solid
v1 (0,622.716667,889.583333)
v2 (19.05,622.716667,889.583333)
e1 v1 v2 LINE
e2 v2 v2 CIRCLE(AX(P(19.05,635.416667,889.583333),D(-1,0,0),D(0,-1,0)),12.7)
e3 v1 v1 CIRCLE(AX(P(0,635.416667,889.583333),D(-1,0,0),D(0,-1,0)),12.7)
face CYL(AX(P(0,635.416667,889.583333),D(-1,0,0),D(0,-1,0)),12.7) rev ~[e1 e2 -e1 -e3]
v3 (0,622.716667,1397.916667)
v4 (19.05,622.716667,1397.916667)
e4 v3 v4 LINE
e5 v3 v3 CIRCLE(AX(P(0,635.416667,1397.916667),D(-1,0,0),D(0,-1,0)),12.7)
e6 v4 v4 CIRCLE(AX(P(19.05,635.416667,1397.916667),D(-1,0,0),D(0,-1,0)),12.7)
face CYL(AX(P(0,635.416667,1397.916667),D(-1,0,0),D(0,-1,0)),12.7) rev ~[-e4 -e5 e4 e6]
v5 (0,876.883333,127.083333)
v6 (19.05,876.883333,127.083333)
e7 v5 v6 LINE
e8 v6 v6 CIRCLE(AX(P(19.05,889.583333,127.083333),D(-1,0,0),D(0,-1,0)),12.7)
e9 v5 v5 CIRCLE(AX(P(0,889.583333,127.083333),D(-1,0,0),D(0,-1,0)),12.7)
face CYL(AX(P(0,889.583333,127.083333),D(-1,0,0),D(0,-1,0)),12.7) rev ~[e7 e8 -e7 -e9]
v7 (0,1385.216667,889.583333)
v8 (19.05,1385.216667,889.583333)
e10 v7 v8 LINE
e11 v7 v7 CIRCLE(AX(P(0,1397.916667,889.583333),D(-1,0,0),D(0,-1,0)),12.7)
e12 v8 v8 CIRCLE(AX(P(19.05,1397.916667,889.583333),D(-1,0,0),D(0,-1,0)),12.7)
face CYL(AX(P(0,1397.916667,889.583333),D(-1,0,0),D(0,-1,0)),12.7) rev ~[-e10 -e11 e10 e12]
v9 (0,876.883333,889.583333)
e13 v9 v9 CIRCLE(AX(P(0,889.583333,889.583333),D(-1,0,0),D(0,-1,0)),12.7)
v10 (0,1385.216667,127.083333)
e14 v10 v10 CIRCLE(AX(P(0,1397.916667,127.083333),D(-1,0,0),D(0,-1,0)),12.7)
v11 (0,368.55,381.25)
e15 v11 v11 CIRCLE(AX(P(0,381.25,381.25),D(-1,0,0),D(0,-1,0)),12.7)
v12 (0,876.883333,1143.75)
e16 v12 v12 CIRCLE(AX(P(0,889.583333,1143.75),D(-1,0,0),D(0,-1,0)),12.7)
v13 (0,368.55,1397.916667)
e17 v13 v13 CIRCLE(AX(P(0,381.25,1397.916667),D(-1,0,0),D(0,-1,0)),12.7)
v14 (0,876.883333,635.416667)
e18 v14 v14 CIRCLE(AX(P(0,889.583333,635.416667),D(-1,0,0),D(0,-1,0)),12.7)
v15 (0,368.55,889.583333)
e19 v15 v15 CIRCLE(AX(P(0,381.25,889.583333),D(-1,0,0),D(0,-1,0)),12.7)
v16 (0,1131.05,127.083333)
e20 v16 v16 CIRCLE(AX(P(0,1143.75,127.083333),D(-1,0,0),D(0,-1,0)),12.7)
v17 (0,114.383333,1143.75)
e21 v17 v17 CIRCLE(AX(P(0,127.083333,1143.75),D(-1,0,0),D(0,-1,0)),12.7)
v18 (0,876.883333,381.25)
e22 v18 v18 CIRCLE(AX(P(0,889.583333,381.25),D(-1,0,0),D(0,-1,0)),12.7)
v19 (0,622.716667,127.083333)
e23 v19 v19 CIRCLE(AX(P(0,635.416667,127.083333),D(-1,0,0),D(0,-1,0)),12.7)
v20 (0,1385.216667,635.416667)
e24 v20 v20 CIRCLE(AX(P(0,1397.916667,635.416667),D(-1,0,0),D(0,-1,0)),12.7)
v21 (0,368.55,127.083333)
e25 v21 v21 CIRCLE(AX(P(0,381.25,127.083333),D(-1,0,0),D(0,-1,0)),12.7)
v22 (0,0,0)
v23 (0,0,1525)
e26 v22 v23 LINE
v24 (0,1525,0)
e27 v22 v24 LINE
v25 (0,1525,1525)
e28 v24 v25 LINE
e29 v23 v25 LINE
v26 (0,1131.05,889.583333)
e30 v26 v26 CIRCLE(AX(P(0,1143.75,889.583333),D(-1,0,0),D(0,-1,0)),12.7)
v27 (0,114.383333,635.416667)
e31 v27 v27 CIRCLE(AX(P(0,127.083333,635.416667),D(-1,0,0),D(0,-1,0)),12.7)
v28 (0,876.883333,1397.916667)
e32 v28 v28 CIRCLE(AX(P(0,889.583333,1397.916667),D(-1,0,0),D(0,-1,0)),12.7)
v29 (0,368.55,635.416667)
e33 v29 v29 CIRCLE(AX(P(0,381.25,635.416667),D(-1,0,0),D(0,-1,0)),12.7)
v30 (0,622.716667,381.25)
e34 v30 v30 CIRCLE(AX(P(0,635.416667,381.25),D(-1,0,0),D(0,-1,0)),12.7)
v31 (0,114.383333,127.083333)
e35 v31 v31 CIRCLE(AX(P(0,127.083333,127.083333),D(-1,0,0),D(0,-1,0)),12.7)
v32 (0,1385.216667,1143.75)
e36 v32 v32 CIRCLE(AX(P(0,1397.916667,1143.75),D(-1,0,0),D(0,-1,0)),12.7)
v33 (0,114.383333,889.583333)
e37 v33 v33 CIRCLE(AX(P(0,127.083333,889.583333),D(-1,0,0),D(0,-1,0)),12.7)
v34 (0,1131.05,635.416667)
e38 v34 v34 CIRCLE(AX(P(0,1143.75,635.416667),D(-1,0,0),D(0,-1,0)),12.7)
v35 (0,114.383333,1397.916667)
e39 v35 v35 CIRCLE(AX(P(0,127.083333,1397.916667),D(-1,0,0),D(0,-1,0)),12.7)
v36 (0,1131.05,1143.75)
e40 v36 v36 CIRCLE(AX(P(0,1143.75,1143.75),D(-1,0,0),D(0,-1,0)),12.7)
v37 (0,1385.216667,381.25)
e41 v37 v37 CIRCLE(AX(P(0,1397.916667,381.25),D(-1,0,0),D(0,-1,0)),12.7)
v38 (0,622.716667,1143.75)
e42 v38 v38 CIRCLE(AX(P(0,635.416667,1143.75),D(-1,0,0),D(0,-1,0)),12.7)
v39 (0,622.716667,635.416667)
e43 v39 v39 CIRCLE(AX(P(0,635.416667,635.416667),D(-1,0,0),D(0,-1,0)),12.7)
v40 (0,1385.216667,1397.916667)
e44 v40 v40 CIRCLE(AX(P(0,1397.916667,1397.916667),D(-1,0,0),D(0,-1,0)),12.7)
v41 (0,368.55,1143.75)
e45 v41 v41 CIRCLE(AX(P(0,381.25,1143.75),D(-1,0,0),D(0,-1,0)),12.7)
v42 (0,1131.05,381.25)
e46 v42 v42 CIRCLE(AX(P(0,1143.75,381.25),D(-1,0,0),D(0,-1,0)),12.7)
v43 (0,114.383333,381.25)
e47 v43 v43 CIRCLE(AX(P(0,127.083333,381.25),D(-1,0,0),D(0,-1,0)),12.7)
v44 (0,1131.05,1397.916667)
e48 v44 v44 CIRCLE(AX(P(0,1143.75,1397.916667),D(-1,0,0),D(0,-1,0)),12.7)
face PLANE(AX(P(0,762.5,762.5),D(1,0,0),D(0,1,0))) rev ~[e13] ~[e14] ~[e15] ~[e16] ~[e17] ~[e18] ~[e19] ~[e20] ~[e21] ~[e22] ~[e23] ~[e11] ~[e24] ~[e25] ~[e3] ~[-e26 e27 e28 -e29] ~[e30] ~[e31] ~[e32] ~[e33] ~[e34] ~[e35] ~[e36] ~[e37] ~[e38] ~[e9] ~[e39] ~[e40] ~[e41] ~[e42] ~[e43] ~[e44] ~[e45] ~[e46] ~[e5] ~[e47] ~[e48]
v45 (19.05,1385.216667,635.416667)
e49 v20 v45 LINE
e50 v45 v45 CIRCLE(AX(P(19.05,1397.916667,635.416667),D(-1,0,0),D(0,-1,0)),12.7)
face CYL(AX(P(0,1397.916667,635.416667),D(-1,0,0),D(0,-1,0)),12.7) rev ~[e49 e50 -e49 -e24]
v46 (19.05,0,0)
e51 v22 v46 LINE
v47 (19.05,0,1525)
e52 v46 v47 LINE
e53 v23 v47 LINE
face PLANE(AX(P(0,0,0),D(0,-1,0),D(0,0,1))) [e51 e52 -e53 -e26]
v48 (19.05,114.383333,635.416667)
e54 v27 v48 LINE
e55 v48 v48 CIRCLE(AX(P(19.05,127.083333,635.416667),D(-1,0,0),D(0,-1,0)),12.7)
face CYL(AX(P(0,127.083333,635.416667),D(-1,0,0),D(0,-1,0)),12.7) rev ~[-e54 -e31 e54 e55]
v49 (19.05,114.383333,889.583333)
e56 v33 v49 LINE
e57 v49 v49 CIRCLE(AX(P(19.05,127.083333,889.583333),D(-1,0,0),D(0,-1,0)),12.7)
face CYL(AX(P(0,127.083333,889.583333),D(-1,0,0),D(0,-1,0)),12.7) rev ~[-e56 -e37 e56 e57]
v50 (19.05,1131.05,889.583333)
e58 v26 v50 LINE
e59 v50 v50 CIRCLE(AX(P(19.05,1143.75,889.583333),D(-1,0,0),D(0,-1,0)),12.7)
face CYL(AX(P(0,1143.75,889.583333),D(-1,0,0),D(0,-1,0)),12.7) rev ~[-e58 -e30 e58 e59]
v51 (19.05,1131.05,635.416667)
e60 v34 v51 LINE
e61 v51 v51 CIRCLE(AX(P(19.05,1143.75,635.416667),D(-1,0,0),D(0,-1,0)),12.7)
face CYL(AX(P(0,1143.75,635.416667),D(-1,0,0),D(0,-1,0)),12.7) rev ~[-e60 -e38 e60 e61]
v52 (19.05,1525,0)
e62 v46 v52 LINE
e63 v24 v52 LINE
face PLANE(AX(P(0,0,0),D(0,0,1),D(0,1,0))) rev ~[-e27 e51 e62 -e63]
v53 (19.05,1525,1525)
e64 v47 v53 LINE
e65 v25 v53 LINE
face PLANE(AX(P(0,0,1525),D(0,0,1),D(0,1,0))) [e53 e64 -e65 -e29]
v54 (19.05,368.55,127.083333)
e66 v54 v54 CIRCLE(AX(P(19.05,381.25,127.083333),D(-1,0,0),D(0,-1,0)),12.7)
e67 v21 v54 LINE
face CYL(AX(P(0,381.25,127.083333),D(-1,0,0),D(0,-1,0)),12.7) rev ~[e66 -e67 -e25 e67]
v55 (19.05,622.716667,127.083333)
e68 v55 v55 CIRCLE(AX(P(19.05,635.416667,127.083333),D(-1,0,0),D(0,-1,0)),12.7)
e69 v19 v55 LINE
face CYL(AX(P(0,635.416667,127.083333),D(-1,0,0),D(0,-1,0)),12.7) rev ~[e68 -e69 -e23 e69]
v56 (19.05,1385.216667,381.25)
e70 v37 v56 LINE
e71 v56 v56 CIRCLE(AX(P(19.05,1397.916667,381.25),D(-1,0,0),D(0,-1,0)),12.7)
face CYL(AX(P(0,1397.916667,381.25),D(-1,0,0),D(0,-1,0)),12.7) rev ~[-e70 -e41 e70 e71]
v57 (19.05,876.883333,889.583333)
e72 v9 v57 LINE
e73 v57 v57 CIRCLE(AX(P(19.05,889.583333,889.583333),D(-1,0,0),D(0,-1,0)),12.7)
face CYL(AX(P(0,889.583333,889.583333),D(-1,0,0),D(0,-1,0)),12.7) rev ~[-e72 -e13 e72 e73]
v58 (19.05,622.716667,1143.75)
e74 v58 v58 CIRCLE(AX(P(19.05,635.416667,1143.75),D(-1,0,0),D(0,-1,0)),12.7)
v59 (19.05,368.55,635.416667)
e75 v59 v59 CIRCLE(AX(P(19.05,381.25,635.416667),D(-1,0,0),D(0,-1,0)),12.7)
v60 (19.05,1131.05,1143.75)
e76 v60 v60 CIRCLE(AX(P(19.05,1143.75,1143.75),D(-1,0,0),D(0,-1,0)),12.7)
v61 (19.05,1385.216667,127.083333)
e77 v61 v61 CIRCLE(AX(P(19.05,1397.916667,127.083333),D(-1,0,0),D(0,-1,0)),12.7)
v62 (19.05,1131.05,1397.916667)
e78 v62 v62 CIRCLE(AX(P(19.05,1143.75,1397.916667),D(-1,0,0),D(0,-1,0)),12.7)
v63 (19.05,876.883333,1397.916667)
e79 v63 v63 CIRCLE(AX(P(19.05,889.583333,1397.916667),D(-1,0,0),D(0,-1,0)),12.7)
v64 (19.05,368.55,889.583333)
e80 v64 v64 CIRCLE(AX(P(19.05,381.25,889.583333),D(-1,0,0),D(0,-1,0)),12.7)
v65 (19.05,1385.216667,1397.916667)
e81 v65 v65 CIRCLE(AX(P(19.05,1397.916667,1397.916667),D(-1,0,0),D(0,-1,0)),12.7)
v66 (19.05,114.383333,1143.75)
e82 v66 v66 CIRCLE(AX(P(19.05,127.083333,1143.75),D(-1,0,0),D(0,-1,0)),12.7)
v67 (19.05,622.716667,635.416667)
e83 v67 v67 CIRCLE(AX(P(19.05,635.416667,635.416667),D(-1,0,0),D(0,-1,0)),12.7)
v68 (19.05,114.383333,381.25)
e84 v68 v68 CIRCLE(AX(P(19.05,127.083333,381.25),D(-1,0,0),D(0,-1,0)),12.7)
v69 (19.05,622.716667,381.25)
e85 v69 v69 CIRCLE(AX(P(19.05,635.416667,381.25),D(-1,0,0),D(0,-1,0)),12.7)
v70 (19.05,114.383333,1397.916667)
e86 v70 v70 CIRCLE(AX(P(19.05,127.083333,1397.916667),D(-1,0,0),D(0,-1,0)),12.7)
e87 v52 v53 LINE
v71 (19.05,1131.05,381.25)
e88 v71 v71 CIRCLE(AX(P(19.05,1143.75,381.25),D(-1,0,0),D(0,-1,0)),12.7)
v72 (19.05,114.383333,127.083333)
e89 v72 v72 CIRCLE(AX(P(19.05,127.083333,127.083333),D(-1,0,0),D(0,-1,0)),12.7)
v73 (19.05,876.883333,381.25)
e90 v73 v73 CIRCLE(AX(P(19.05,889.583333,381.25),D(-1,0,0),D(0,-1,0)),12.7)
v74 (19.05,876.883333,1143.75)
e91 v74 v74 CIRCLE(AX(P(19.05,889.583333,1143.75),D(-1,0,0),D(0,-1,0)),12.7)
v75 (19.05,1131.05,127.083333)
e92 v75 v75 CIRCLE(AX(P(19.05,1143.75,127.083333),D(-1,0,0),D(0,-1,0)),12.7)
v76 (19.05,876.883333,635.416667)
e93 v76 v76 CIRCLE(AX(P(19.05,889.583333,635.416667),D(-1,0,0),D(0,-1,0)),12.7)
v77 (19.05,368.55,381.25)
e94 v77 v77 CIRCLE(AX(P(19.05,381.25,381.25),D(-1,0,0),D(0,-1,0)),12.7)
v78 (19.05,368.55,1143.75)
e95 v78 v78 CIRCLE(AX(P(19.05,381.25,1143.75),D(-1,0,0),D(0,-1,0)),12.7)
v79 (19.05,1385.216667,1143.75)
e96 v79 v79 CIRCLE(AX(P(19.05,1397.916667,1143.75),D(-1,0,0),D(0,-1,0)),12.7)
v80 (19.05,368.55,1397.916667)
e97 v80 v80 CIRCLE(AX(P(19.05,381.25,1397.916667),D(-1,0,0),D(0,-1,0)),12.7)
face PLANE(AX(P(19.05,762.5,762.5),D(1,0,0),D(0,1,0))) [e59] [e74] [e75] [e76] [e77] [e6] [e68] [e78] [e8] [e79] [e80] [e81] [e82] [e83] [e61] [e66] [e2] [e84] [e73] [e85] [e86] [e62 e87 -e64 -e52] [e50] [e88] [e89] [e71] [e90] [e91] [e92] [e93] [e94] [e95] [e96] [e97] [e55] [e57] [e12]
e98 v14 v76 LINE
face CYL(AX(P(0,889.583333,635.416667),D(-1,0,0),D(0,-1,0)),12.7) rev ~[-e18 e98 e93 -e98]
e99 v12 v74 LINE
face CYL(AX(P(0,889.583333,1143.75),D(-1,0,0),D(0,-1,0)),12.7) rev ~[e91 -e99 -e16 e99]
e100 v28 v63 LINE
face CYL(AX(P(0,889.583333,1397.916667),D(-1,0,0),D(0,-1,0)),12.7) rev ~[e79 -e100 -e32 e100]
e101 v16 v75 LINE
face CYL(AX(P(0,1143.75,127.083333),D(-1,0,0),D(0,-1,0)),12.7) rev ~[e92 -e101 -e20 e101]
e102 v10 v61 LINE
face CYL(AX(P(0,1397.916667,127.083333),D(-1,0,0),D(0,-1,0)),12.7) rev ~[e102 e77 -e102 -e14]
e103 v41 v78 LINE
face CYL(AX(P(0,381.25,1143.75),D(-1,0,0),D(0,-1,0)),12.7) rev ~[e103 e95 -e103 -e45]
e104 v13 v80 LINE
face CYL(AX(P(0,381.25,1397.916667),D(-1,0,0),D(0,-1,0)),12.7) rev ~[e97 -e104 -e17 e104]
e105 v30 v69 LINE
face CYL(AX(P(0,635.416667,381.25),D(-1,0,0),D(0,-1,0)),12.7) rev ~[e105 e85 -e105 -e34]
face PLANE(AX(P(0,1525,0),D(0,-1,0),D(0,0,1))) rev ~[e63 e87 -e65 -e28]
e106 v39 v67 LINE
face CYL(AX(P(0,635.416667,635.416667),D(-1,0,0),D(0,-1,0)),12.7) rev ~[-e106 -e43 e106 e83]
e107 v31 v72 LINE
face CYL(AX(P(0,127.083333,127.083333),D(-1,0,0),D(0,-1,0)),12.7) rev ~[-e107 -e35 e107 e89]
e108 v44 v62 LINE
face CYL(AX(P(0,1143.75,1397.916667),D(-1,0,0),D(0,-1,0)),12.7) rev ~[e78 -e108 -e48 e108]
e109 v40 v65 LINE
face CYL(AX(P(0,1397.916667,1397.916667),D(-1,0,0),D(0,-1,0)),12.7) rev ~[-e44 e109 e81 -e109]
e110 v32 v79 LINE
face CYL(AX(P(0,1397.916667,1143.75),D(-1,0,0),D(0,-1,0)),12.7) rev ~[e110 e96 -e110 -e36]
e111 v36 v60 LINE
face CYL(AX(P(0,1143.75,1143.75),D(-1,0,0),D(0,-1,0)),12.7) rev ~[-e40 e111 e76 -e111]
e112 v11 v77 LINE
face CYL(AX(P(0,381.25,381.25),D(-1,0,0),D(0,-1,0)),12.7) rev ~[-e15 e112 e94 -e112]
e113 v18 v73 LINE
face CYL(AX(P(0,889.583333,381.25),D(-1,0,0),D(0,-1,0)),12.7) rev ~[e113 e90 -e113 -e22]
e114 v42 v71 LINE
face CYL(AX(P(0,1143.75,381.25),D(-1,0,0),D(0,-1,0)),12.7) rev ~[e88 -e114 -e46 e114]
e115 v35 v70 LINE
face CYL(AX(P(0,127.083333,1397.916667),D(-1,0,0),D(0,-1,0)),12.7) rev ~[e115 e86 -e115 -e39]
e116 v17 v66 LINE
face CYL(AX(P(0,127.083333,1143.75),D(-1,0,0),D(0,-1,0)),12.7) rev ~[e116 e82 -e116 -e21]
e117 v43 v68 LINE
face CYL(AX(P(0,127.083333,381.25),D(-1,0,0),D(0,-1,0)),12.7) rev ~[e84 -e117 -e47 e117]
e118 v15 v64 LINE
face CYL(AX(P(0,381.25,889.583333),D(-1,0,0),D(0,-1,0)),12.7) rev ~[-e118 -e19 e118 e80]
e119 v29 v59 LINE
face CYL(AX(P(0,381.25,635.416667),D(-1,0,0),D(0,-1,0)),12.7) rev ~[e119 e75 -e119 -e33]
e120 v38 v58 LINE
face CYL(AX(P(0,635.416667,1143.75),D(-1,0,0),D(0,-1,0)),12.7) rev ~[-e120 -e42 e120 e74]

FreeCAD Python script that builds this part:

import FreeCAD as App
import Part
import Sketcher
Q = App.Units.Quantity


def add_polygon(sketch, points):
    """Adds a closed chain of lines whose ends are joined by coincident constraints."""
    first, n = sketch.GeometryCount, len(points)
    for a, b in zip(points, points[1:] + points[:1]):
        sketch.addGeometry(Part.LineSegment(App.Vector(*a, 0), App.Vector(*b, 0)), False)
    for i in range(n):
        sketch.addConstraint(Sketcher.Constraint("Coincident", first + i, 2, first + (i + 1) % n, 1))

doc = App.newDocument("Part")
body = doc.addObject("PartDesign::Body", "Body")

sketch1 = body.newObject("Sketcher::SketchObject", "Sketch")
sketch1.AttachmentSupport = (doc.getObject("YZ_Plane"), [""])
sketch1.MapMode = "FlatFace"
add_polygon(sketch1, [(0, 1525), (0, 0), (1525, 0), (1525, 1525)])
sketch1.addConstraint([
    Sketcher.Constraint("Vertical", 0),
    Sketcher.Constraint("Horizontal", 1),
    Sketcher.Constraint("Vertical", 2),
    Sketcher.Constraint("Horizontal", 3),
    Sketcher.Constraint("Coincident", 0, 2, -1, 1),
    Sketcher.Constraint("Equal", 3, 0),
    Sketcher.Constraint("DistanceX", 1, 1, 1, 2, 1525.0),
])
pad1 = body.newObject("PartDesign::Pad", "Pad")
pad1.Profile = sketch1
pad1.Length = Q("0.75 in")

sketch2 = body.newObject("Sketcher::SketchObject", "Sketch001")
sketch2.AttachmentSupport = (doc.getObject("YZ_Plane"), [""])
sketch2.MapMode = "FlatFace"
sketch2.addGeometry([
    Part.Circle(App.Vector(1398, 1398, 0), App.Vector(0, 0, 1), 13),
    Part.Circle(App.Vector(1398, 1144, 0), App.Vector(0, 0, 1), 13),
    Part.Circle(App.Vector(1398, 890, 0), App.Vector(0, 0, 1), 13),
    Part.Circle(App.Vector(1398, 635, 0), App.Vector(0, 0, 1), 13),
    Part.Circle(App.Vector(1398, 381, 0), App.Vector(0, 0, 1), 13),
    Part.Circle(App.Vector(1398, 127, 0), App.Vector(0, 0, 1), 13),
    Part.Circle(App.Vector(1144, 1398, 0), App.Vector(0, 0, 1), 13),
    Part.Circle(App.Vector(1144, 1144, 0), App.Vector(0, 0, 1), 13),
    Part.Circle(App.Vector(1144, 890, 0), App.Vector(0, 0, 1), 13),
    Part.Circle(App.Vector(1144, 635, 0), App.Vector(0, 0, 1), 13),
    Part.Circle(App.Vector(1144, 381, 0), App.Vector(0, 0, 1), 13),
    Part.Circle(App.Vector(1144, 127, 0), App.Vector(0, 0, 1), 13),
    Part.Circle(App.Vector(890, 1398, 0), App.Vector(0, 0, 1), 13),
    Part.Circle(App.Vector(890, 1144, 0), App.Vector(0, 0, 1), 13),
    Part.Circle(App.Vector(890, 890, 0), App.Vector(0, 0, 1), 13),
    Part.Circle(App.Vector(890, 635, 0), App.Vector(0, 0, 1), 13),
    Part.Circle(App.Vector(890, 381, 0), App.Vector(0, 0, 1), 13),
    Part.Circle(App.Vector(890, 127, 0), App.Vector(0, 0, 1), 13),
    Part.Circle(App.Vector(635, 1398, 0), App.Vector(0, 0, 1), 13),
    Part.Circle(App.Vector(635, 1144, 0), App.Vector(0, 0, 1), 13),
    Part.Circle(App.Vector(635, 890, 0), App.Vector(0, 0, 1), 13),
    Part.Circle(App.Vector(635, 635, 0), App.Vector(0, 0, 1), 13),
    Part.Circle(App.Vector(635, 381, 0), App.Vector(0, 0, 1), 13),
    Part.Circle(App.Vector(635, 127, 0), App.Vector(0, 0, 1), 13),
    Part.Circle(App.Vector(381, 1398, 0), App.Vector(0, 0, 1), 13),
    Part.Circle(App.Vector(381, 1144, 0), App.Vector(0, 0, 1), 13),
    Part.Circle(App.Vector(381, 890, 0), App.Vector(0, 0, 1), 13),
    Part.Circle(App.Vector(381, 635, 0), App.Vector(0, 0, 1), 13),
    Part.Circle(App.Vector(381, 381, 0), App.Vector(0, 0, 1), 13),
    Part.Circle(App.Vector(381, 127, 0), App.Vector(0, 0, 1), 13),
    Part.Circle(App.Vector(127, 1398, 0), App.Vector(0, 0, 1), 13),
    Part.Circle(App.Vector(127, 1144, 0), App.Vector(0, 0, 1), 13),
    Part.Circle(App.Vector(127, 890, 0), App.Vector(0, 0, 1), 13),
    Part.Circle(App.Vector(127, 635, 0), App.Vector(0, 0, 1), 13),
    Part.Circle(App.Vector(127, 381, 0), App.Vector(0, 0, 1), 13),
    Part.Circle(App.Vector(127, 127, 0), App.Vector(0, 0, 1), 13),
], False)
sketch2.addConstraint([
    Sketcher.Constraint("Equal", 0, 1),
    Sketcher.Constraint("Equal", 1, 2),
    Sketcher.Constraint("Equal", 2, 3),
    Sketcher.Constraint("Equal", 3, 4),
    Sketcher.Constraint("Equal", 4, 5),
    Sketcher.Constraint("Equal", 5, 6),
    Sketcher.Constraint("Equal", 6, 7),
    Sketcher.Constraint("Equal", 7, 8),
    Sketcher.Constraint("Equal", 8, 9),
    Sketcher.Constraint("Equal", 9, 10),
    Sketcher.Constraint("Equal", 10, 11),
    Sketcher.Constraint("Equal", 11, 12),
    Sketcher.Constraint("Equal", 12, 13),
    Sketcher.Constraint("Equal", 13, 14),
    Sketcher.Constraint("Equal", 14, 15),
    Sketcher.Constraint("Equal", 15, 16),
    Sketcher.Constraint("Equal", 16, 17),
    Sketcher.Constraint("Equal", 17, 18),
    Sketcher.Constraint("Equal", 18, 19),
    Sketcher.Constraint("Equal", 19, 20),
    Sketcher.Constraint("Equal", 20, 21),
    Sketcher.Constraint("Equal", 21, 22),
    Sketcher.Constraint("Equal", 22, 23),
    Sketcher.Constraint("Equal", 23, 24),
    Sketcher.Constraint("Equal", 24, 25),
    Sketcher.Constraint("Equal", 25, 26),
    Sketcher.Constraint("Equal", 26, 27),
    Sketcher.Constraint("Equal", 27, 28),
    Sketcher.Constraint("Equal", 28, 29),
    Sketcher.Constraint("Equal", 29, 30),
    Sketcher.Constraint("Equal", 30, 31),
    Sketcher.Constraint("Equal", 31, 32),
    Sketcher.Constraint("Equal", 32, 33),
    Sketcher.Constraint("Equal", 33, 34),
    Sketcher.Constraint("Equal", 34, 35),
    Sketcher.Constraint("Horizontal", 0, 3, 6, 3),
    Sketcher.Constraint("Horizontal", 1, 3, 7, 3),
    Sketcher.Constraint("Horizontal", 2, 3, 8, 3),
    Sketcher.Constraint("Horizontal", 3, 3, 9, 3),
    Sketcher.Constraint("Horizontal", 4, 3, 10, 3),
    Sketcher.Constraint("Horizontal", 5, 3, 11, 3),
    Sketcher.Constraint("Horizontal", 6, 3, 12, 3),
    Sketcher.Constraint("Horizontal", 7, 3, 13, 3),
    Sketcher.Constraint("Horizontal", 8, 3, 14, 3),
    Sketcher.Constraint("Horizontal", 9, 3, 15, 3),
    Sketcher.Constraint("Horizontal", 10, 3, 16, 3),
    Sketcher.Constraint("Horizontal", 11, 3, 17, 3),
    Sketcher.Constraint("Horizontal", 12, 3, 18, 3),
    Sketcher.Constraint("Horizontal", 13, 3, 19, 3),
    Sketcher.Constraint("Horizontal", 14, 3, 20, 3),
    Sketcher.Constraint("Horizontal", 15, 3, 21, 3),
    Sketcher.Constraint("Horizontal", 16, 3, 22, 3),
    Sketcher.Constraint("Horizontal", 17, 3, 23, 3),
    Sketcher.Constraint("Horizontal", 18, 3, 24, 3),
    Sketcher.Constraint("Horizontal", 19, 3, 25, 3),
    Sketcher.Constraint("Horizontal", 20, 3, 26, 3),
    Sketcher.Constraint("Horizontal", 21, 3, 27, 3),
    Sketcher.Constraint("Horizontal", 22, 3, 28, 3),
    Sketcher.Constraint("Horizontal", 23, 3, 29, 3),
    Sketcher.Constraint("Horizontal", 24, 3, 30, 3),
    Sketcher.Constraint("Horizontal", 25, 3, 31, 3),
    Sketcher.Constraint("Horizontal", 26, 3, 32, 3),
    Sketcher.Constraint("Horizontal", 27, 3, 33, 3),
    Sketcher.Constraint("Horizontal", 28, 3, 34, 3),
    Sketcher.Constraint("Horizontal", 29, 3, 35, 3),
    Sketcher.Constraint("Vertical", 0, 3, 1, 3),
    Sketcher.Constraint("Vertical", 1, 3, 2, 3),
    Sketcher.Constraint("Vertical", 2, 3, 3, 3),
    Sketcher.Constraint("Vertical", 3, 3, 4, 3),
    Sketcher.Constraint("Vertical", 4, 3, 5, 3),
    Sketcher.Constraint("Vertical", 6, 3, 7, 3),
    Sketcher.Constraint("Vertical", 7, 3, 8, 3),
    Sketcher.Constraint("Vertical", 8, 3, 9, 3),
    Sketcher.Constraint("Vertical", 9, 3, 10, 3),
    Sketcher.Constraint("Vertical", 10, 3, 11, 3),
    Sketcher.Constraint("Vertical", 12, 3, 13, 3),
    Sketcher.Constraint("Vertical", 13, 3, 14, 3),
    Sketcher.Constraint("Vertical", 14, 3, 15, 3),
    Sketcher.Constraint("Vertical", 15, 3, 16, 3),
    Sketcher.Constraint("Vertical", 16, 3, 17, 3),
    Sketcher.Constraint("Vertical", 18, 3, 19, 3),
    Sketcher.Constraint("Vertical", 19, 3, 20, 3),
    Sketcher.Constraint("Vertical", 20, 3, 21, 3),
    Sketcher.Constraint("Vertical", 21, 3, 22, 3),
    Sketcher.Constraint("Vertical", 22, 3, 23, 3),
    Sketcher.Constraint("Vertical", 24, 3, 25, 3),
    Sketcher.Constraint("Vertical", 25, 3, 26, 3),
    Sketcher.Constraint("Vertical", 26, 3, 27, 3),
    Sketcher.Constraint("Vertical", 27, 3, 28, 3),
    Sketcher.Constraint("Vertical", 28, 3, 29, 3),
    Sketcher.Constraint("Vertical", 30, 3, 31, 3),
    Sketcher.Constraint("Vertical", 31, 3, 32, 3),
    Sketcher.Constraint("Vertical", 32, 3, 33, 3),
    Sketcher.Constraint("Vertical", 33, 3, 34, 3),
    Sketcher.Constraint("Vertical", 34, 3, 35, 3),
    Sketcher.Constraint("Diameter", 0, Q("1 in")),
    Sketcher.Constraint("DistanceY", -1, 1, 1, 3, 1143.75),
    Sketcher.Constraint("DistanceY", -1, 1, 4, 3, 381.25),
    Sketcher.Constraint("DistanceX", -1, 1, 6, 3, 1143.75),
    Sketcher.Constraint("DistanceX", -1, 1, 24, 3, 381.25),
    Sketcher.Constraint("DistanceY", 3, 3, 0, 3, 762.5),
    Sketcher.Constraint("DistanceY", 5, 3, 2, 3, 762.5),
    Sketcher.Constraint("DistanceX", -1, 1, 0, 3, 1397.916667),
    Sketcher.Constraint("DistanceY", -1, 1, 0, 3, 1397.916667),
    Sketcher.Constraint("DistanceY", -1, 1, 2, 3, 889.583333),
    Sketcher.Constraint("DistanceX", -1, 1, 12, 3, 889.583333),
    Sketcher.Constraint("DistanceX", -1, 1, 18, 3, 635.416667),
    Sketcher.Constraint("DistanceX", -1, 1, 30, 3, 127.083333),
])
pocket1 = body.newObject("PartDesign::Pocket", "Pocket")
pocket1.Profile = sketch2
pocket1.Type = "ThroughAll"
pocket1.Midplane = True

doc.recompute()
